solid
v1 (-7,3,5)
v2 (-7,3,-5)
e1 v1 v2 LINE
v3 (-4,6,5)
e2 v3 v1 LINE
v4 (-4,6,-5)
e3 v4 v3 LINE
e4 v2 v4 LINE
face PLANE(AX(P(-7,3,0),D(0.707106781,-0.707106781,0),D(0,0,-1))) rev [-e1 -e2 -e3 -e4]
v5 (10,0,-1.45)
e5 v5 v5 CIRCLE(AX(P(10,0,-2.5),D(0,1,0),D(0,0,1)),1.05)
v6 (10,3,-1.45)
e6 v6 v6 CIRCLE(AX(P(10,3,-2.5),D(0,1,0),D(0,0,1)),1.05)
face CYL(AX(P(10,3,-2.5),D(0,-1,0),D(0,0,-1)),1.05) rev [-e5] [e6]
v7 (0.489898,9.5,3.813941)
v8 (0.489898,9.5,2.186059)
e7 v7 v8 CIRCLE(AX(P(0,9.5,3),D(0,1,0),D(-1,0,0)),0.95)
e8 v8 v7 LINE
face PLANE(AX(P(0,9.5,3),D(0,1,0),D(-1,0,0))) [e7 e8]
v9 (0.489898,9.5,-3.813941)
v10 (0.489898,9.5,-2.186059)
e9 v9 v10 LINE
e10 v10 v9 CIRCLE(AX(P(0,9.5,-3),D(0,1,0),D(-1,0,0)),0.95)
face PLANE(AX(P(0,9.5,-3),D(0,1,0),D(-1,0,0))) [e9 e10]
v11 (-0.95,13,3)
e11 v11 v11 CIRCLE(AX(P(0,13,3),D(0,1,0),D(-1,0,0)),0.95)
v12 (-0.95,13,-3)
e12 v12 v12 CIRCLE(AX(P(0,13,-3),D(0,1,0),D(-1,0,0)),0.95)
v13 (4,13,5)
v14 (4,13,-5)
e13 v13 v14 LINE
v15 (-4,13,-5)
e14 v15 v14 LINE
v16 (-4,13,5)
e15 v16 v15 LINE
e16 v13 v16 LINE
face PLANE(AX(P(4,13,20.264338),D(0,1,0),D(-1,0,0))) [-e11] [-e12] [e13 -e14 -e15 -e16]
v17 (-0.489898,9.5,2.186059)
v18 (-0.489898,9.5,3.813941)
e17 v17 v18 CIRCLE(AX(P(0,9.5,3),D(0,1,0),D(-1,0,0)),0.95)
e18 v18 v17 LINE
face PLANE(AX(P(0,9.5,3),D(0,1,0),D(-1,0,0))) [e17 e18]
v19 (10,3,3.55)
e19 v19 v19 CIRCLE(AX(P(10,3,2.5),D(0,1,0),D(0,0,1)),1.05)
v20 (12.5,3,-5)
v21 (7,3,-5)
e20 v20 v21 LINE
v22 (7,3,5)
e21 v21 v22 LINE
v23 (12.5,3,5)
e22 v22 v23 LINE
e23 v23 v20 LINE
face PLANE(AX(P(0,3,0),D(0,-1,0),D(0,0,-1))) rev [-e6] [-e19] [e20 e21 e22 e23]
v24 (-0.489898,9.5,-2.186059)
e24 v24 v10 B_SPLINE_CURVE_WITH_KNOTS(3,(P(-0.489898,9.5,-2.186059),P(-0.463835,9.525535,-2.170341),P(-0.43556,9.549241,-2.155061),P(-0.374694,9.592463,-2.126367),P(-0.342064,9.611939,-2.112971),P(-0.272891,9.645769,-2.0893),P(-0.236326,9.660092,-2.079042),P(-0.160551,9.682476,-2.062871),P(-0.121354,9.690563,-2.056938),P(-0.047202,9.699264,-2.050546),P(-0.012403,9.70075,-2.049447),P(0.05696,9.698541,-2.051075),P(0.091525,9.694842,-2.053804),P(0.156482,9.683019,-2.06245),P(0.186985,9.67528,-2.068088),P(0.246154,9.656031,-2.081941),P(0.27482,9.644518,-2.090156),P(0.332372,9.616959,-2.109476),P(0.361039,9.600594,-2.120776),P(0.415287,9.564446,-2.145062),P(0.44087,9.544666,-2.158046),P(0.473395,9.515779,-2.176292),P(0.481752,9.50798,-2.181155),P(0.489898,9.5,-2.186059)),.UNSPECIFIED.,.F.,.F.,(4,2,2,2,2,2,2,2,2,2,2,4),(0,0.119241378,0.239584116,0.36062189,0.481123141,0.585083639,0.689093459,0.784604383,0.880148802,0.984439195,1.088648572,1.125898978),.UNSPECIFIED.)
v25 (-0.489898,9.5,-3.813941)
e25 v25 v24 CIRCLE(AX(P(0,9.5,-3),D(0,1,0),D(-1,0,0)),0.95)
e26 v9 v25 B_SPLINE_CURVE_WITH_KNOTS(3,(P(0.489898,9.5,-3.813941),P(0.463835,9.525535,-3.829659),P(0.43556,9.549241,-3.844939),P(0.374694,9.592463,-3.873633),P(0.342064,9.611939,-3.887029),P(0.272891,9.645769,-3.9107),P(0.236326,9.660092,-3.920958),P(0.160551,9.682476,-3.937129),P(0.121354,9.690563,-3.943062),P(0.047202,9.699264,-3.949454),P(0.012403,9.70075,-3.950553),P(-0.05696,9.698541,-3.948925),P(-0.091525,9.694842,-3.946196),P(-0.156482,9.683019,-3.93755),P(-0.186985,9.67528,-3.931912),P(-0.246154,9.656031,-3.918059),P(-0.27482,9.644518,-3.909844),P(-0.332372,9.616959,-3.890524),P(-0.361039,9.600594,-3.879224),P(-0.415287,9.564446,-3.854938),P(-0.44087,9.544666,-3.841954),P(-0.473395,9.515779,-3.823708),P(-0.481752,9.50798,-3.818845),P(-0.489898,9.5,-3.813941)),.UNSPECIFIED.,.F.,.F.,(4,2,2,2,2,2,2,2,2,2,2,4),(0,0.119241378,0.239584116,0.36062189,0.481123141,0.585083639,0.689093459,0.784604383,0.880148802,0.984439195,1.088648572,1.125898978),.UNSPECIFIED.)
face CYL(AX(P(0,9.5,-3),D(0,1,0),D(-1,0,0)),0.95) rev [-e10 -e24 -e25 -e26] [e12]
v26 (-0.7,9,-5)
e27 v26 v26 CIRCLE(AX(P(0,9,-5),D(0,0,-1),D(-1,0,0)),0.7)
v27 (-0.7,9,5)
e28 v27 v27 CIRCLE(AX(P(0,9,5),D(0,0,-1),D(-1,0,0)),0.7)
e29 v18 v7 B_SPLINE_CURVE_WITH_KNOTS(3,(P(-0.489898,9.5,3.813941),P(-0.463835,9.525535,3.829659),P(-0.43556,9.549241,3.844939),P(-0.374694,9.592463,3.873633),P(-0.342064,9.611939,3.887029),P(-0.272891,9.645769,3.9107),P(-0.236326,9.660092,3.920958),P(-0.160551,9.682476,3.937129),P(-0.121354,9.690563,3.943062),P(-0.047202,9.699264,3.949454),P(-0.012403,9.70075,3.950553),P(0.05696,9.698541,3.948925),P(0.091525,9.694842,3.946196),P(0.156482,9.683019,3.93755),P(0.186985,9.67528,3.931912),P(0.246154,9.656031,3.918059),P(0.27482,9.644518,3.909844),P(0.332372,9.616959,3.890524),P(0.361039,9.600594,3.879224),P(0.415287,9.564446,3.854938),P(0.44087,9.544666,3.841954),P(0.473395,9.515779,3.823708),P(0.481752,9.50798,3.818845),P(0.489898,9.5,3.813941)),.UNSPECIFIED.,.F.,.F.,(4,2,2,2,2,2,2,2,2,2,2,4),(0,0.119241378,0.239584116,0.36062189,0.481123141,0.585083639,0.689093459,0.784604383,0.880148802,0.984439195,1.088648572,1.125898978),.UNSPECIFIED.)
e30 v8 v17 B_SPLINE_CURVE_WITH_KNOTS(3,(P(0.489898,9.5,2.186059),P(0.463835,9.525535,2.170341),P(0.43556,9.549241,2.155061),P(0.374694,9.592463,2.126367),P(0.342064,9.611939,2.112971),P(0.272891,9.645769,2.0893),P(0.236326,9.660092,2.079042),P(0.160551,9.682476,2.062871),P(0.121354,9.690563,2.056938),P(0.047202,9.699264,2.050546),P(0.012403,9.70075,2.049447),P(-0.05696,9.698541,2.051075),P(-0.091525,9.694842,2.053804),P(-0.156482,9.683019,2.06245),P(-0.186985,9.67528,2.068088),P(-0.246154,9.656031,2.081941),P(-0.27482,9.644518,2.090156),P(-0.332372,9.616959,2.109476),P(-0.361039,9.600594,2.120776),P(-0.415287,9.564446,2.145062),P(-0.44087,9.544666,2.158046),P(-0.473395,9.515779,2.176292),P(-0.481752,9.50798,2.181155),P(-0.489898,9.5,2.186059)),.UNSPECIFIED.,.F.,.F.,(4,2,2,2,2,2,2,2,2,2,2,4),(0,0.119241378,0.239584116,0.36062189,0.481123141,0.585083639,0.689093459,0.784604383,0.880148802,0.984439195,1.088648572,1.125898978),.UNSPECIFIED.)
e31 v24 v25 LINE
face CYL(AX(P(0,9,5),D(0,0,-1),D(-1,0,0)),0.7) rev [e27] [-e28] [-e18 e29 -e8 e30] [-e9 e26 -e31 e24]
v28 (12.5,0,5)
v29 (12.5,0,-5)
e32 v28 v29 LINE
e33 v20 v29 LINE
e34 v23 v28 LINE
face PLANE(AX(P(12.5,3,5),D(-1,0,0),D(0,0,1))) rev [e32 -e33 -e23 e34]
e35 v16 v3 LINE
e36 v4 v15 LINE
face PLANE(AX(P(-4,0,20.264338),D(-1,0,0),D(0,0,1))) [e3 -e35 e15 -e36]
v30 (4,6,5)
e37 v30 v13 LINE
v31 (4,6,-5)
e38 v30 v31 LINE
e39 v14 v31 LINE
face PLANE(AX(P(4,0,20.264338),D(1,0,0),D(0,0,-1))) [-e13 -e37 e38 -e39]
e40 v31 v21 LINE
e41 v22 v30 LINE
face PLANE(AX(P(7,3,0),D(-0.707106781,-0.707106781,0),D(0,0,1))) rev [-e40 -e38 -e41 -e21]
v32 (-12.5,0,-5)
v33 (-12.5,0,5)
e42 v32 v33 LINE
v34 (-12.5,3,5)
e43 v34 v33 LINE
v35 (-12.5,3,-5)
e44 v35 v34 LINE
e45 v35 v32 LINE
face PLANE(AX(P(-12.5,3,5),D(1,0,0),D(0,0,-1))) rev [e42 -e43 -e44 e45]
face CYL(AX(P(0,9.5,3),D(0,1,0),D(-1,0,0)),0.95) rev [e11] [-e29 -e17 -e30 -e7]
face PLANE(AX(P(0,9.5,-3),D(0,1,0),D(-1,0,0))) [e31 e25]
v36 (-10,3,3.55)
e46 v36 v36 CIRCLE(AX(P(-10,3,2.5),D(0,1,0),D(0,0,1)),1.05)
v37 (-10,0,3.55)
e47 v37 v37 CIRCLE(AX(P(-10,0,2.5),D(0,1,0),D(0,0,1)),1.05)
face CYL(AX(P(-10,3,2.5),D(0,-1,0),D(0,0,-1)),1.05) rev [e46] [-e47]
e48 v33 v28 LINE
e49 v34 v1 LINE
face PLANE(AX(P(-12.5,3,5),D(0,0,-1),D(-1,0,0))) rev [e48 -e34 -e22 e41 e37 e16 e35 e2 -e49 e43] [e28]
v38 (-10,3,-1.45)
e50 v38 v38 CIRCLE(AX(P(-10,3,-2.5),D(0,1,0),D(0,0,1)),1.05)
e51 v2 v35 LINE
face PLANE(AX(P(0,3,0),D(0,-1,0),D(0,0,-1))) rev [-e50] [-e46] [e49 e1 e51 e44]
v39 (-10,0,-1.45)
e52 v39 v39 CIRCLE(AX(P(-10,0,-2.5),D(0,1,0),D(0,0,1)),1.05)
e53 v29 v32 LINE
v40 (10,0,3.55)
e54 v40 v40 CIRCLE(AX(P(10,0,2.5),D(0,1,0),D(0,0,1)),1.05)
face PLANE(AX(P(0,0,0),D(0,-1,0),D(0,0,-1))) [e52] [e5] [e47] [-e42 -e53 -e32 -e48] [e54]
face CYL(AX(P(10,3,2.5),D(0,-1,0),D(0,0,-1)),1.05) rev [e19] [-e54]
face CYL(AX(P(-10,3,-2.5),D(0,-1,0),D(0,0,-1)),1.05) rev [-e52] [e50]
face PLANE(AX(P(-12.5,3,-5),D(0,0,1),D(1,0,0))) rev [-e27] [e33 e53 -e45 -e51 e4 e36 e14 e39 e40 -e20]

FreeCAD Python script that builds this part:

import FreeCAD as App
import Part
import Sketcher
from FreeCAD import Vector


def edges_at(feature, points):
    """Names of the edges that pass closest to the given points."""
    edges = feature.Shape.Edges
    near = lambda p: min(range(len(edges)), key=lambda i: edges[i].distToShape(Part.Vertex(*p))[0])
    return sorted({f"Edge{near(p) + 1}" for p in points})

doc = App.newDocument("Part")
params = doc.addObject("Spreadsheet::Sheet", "Params")
for row, (alias, value) in enumerate([
    ("sketch1_diameter", "2.1 mm"),
    ("sketch1_width", "25 mm"),
    ("sketch1_height", "10 mm"),
    ("pad1_length", "3 mm"),
    ("sketch2_width", "8 mm"),
    ("sketch2_height", "13 mm"),
    ("pad2_length", "10 mm"),
    ("sketch3_diameter", "1.4 mm"),
    ("sketch4_diameter", "1.9 mm"),
    ("pocket2_length", "3.5 mm"),
    ("chamfer_size", "3 mm"),
], start=1):
    params.set(f"A{row}", alias)
    params.set(f"B{row}", "=" + value)
    params.setAlias(f"B{row}", alias)

body = doc.addObject("PartDesign::Body", "Body")

sketch1 = doc.addObject("Sketcher::SketchObject", "Sketch")
body.addObject(sketch1)
sketch1.AttachmentSupport = (doc.XZ_Plane, [""])
sketch1.MapMode = "FlatFace"
sketch1.addGeometry([
    Part.LineSegment(Vector(-12.5, -5, 0), Vector(-12.5, 5, 0)),
    Part.LineSegment(Vector(-12.5, 5, 0), Vector(12.5, 5, 0)),
    Part.LineSegment(Vector(12.5, 5, 0), Vector(12.5, -5, 0)),
    Part.LineSegment(Vector(12.5, -5, 0), Vector(-12.5, -5, 0)),
    Part.Circle(Vector(-10, 2.5, 0), Vector(0, 0, 1), 1.05),
    Part.Circle(Vector(10, 2.5, 0), Vector(0, 0, 1), 1.05),
    Part.Circle(Vector(-10, -2.5, 0), Vector(0, 0, 1), 1.05),
    Part.Circle(Vector(10, -2.5, 0), Vector(0, 0, 1), 1.05),
], False)
sketch1.addConstraint([
    Sketcher.Constraint("Coincident", 0, 2, 1, 1),
    Sketcher.Constraint("Coincident", 1, 2, 2, 1),
    Sketcher.Constraint("Coincident", 2, 2, 3, 1),
    Sketcher.Constraint("Coincident", 3, 2, 0, 1),
    Sketcher.Constraint("Vertical", 0),
    Sketcher.Constraint("Horizontal", 1),
    Sketcher.Constraint("Vertical", 2),
    Sketcher.Constraint("Horizontal", 3),
    Sketcher.Constraint("Equal", 4, 5),
    Sketcher.Constraint("Equal", 5, 6),
    Sketcher.Constraint("Equal", 6, 7),
    Sketcher.Constraint("Symmetric", 5, 3, 6, 3, -1, 1),
    Sketcher.Constraint("Symmetric", 4, 3, 7, 3, -1, 1),
    Sketcher.Constraint("Symmetric", 0, 2, 2, 2, -1, 1),
    Sketcher.Constraint("Symmetric", 4, 3, 5, 3, -2),
    Sketcher.Constraint("Diameter", 4, 2.1),
    Sketcher.Constraint("DistanceX", 1, 1, 1, 2, 25.0),
    Sketcher.Constraint("DistanceY", 0, 1, 0, 2, 10.0),
    Sketcher.Constraint("DistanceX", 4, 3, -1, 1, 10.0),
    Sketcher.Constraint("DistanceY", 6, 3, 4, 3, 5.0),
])
sketch1.setExpression("Constraints[15]", "Params.sketch1_diameter")
sketch1.setExpression("Constraints[16]", "Params.sketch1_width")
sketch1.setExpression("Constraints[17]", "Params.sketch1_height")
pad1 = doc.addObject("PartDesign::Pad", "Pad")
body.addObject(pad1)
pad1.Profile = sketch1
pad1.setExpression("Length", "Params.pad1_length")
pad1.Reversed = True

sketch2 = doc.addObject("Sketcher::SketchObject", "Sketch001")
body.addObject(sketch2)
sketch2.AttachmentSupport = (doc.XY_Plane, [""])
sketch2.MapMode = "FlatFace"
sketch2.AttachmentOffset = App.Placement(Vector(0, 0, -5), App.Rotation())
sketch2.addGeometry([
    Part.LineSegment(Vector(4, 13, 0), Vector(4, 0, 0)),
    Part.LineSegment(Vector(4, 0, 0), Vector(-4, 0, 0)),
    Part.LineSegment(Vector(-4, 0, 0), Vector(-4, 13, 0)),
    Part.LineSegment(Vector(-4, 13, 0), Vector(4, 13, 0)),
], False)
sketch2.addConstraint([
    Sketcher.Constraint("Coincident", 0, 2, 1, 1),
    Sketcher.Constraint("Coincident", 1, 2, 2, 1),
    Sketcher.Constraint("Coincident", 2, 2, 3, 1),
    Sketcher.Constraint("Coincident", 3, 2, 0, 1),
    Sketcher.Constraint("Vertical", 0),
    Sketcher.Constraint("Horizontal", 1),
    Sketcher.Constraint("Vertical", 2),
    Sketcher.Constraint("Horizontal", 3),
    Sketcher.Constraint("Symmetric", 0, 2, 1, 2, -1, 1),
    Sketcher.Constraint("DistanceX", 1, 2, 1, 1, 8.0),
    Sketcher.Constraint("DistanceY", 0, 2, 0, 1, 13.0),
])
sketch2.setExpression("Constraints[9]", "Params.sketch2_width")
sketch2.setExpression("Constraints[10]", "Params.sketch2_height")
pad2 = doc.addObject("PartDesign::Pad", "Pad001")
body.addObject(pad2)
pad2.Profile = sketch2
pad2.setExpression("Length", "Params.pad2_length")

sketch3 = doc.addObject("Sketcher::SketchObject", "Sketch002")
body.addObject(sketch3)
sketch3.AttachmentSupport = (doc.XY_Plane, [""])
sketch3.MapMode = "FlatFace"
sketch3.AttachmentOffset = App.Placement(Vector(0, 0, -5), App.Rotation())
sketch3.addGeometry(Part.Circle(Vector(0, 9, 0), Vector(0, 0, 1), 0.7), False)
sketch3.addConstraint([
    Sketcher.Constraint("PointOnObject", 0, 3, -2),
    Sketcher.Constraint("Diameter", 0, 1.4),
    Sketcher.Constraint("DistanceY", -1, 1, 0, 3, 9.0),
])
sketch3.setExpression("Constraints[1]", "Params.sketch3_diameter")
pocket1 = doc.addObject("PartDesign::Pocket", "Pocket")
body.addObject(pocket1)
pocket1.Profile = sketch3
pocket1.Type = "ThroughAll"
pocket1.Reversed = True

sketch4 = doc.addObject("Sketcher::SketchObject", "Sketch003")
body.addObject(sketch4)
sketch4.AttachmentSupport = (doc.XZ_Plane, [""])
sketch4.MapMode = "FlatFace"
sketch4.AttachmentOffset = App.Placement(Vector(0, 0, -13), App.Rotation())
sketch4.addGeometry([
    Part.Circle(Vector(0, -3, 0), Vector(0, 0, 1), 0.95),
    Part.Circle(Vector(0, 3, 0), Vector(0, 0, 1), 0.95),
], False)
sketch4.addConstraint([
    Sketcher.Constraint("Equal", 0, 1),
    Sketcher.Constraint("Symmetric", 0, 3, 1, 3, -1, 1),
    Sketcher.Constraint("PointOnObject", 0, 3, -2),
    Sketcher.Constraint("Diameter", 0, 1.9),
    Sketcher.Constraint("DistanceY", 0, 3, -1, 1, 3.0),
])
sketch4.setExpression("Constraints[3]", "Params.sketch4_diameter")
pocket2 = doc.addObject("PartDesign::Pocket", "Pocket001")
body.addObject(pocket2)
pocket2.Profile = sketch4
pocket2.setExpression("Length", "Params.pocket2_length")
pocket2.Reversed = True
doc.recompute()

chamfer = doc.addObject("PartDesign::Chamfer", "Chamfer")
body.addObject(chamfer)
chamfer.Base = (pocket2, edges_at(pocket2, [(4, 3, 0), (-4, 3, 0)]))
chamfer.setExpression("Size", "Params.chamfer_size")

doc.recompute()
